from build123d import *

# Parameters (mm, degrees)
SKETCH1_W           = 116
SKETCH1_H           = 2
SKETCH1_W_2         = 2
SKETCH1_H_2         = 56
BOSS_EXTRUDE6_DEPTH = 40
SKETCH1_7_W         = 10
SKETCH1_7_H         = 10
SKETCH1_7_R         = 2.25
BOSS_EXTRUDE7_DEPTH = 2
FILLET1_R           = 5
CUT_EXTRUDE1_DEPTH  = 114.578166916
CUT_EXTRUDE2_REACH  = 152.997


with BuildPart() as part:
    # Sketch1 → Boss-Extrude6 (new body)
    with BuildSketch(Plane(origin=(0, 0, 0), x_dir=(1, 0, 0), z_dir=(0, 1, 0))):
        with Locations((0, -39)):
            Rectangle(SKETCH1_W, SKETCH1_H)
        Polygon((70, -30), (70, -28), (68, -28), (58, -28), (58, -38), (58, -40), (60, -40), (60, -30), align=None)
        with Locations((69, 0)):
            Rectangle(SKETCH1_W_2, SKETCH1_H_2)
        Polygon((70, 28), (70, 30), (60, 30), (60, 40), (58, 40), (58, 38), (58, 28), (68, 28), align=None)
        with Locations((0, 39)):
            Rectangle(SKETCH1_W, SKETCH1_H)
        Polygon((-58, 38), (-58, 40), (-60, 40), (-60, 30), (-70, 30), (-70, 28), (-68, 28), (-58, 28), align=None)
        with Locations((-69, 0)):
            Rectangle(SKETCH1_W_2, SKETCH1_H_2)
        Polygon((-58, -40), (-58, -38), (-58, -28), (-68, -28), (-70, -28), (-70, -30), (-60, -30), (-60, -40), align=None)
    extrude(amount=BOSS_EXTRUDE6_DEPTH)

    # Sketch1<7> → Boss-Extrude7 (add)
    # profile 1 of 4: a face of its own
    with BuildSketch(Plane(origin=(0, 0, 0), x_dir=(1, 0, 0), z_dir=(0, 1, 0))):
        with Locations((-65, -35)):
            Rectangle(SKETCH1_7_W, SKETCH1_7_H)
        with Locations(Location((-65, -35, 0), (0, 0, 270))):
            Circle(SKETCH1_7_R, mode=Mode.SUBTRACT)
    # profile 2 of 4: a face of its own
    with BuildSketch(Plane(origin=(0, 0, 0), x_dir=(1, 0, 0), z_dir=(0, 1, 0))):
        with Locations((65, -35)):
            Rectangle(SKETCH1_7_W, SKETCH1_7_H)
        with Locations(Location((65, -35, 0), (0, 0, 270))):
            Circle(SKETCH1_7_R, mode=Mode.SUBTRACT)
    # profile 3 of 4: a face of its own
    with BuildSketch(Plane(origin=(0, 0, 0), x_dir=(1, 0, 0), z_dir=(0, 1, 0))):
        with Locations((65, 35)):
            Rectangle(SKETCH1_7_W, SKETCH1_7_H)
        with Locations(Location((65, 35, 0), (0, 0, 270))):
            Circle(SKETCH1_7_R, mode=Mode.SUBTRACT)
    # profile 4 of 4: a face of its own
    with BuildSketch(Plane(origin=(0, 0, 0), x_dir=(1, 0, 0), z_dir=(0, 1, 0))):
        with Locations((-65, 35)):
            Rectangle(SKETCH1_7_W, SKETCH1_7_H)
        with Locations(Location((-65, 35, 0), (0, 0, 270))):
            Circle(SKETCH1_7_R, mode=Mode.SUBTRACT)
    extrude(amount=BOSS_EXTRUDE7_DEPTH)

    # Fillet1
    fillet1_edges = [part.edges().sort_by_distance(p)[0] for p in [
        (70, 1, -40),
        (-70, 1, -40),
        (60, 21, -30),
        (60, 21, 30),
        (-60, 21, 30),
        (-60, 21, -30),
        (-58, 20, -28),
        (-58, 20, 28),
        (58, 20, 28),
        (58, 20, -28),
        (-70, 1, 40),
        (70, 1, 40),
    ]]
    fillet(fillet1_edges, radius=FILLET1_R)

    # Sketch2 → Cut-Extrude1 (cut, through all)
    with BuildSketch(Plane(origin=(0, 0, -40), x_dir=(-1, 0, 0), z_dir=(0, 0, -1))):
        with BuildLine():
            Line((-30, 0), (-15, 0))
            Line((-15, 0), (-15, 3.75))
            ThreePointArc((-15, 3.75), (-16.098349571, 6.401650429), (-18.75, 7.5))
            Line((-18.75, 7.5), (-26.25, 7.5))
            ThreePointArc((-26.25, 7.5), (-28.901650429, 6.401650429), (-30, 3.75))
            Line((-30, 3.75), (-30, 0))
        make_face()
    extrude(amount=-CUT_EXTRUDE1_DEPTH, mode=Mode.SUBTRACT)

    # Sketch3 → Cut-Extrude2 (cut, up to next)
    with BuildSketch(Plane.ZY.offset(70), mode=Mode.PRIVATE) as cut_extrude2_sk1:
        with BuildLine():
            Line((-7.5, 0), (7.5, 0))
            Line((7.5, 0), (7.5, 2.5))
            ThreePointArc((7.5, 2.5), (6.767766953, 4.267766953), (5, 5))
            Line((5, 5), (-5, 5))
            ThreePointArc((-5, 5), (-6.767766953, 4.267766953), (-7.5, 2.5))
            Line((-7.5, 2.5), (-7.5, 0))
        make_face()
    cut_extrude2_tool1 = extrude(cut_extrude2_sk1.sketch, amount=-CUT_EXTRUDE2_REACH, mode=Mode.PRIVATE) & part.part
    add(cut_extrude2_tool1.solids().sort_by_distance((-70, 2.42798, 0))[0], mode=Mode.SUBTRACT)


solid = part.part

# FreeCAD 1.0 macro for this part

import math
import FreeCAD as App
import Part
import Sketcher


def edges_at(feature, points):
    """Names of the edges that pass closest to the given points."""
    edges = feature.Shape.Edges
    near = lambda p: min(range(len(edges)), key=lambda i: edges[i].distToShape(Part.Vertex(*p))[0])
    return sorted({f"Edge{near(p) + 1}" for p in points})

doc = App.newDocument("Part")
params = doc.addObject("Spreadsheet::Sheet", "Params")
for row, (alias, value) in enumerate([
    ("sketch1_width", "10 mm"),
    ("sketch1_width2", "120 mm"),
    ("sketch1_width3", "116 mm"),
    ("sketch1_height", "60 mm"),
    ("sketch1_height2", "56 mm"),
    ("pad1_length", "40 mm"),
    ("sketch2_diameter", "4.5 mm"),
    ("sketch2_width", "10 mm"),
    ("pad2_length", "2 mm"),
    ("fillet_radius", "5 mm"),
    ("sketch3_width", "15 mm"),
    ("sketch3_radius", "3.75 mm"),
    ("sketch3_height", "3.75 mm"),
    ("sketch4_radius", "2.5 mm"),
    ("sketch4_height", "15 mm"),
    ("sketch4_width", "2.5 mm"),
], start=1):
    params.set(f"A{row}", alias)
    params.set(f"B{row}", "=" + value)
    params.setAlias(f"B{row}", alias)

body = doc.addObject("PartDesign::Body", "Body")

# Sketch on XZ plane
sketch1 = body.newObject("Sketcher::SketchObject", "Sketch")
sketch1.AttachmentSupport = (doc.getObject("XZ_Plane"), [""])
sketch1.MapMode = "FlatFace"
sketch1.addGeometry([
    Part.LineSegment(App.Vector(60, 40, 0), App.Vector(60, 30, 0)),  # 0
    Part.LineSegment(App.Vector(60, 30, 0), App.Vector(70, 30, 0)),  # 1
    Part.LineSegment(App.Vector(70, 30, 0), App.Vector(70, -30, 0)),  # 2
    Part.LineSegment(App.Vector(70, -30, 0), App.Vector(60, -30, 0)),  # 3
    Part.LineSegment(App.Vector(60, -30, 0), App.Vector(60, -40, 0)),  # 4
    Part.LineSegment(App.Vector(60, -40, 0), App.Vector(-60, -40, 0)),  # 5
    Part.LineSegment(App.Vector(-60, -40, 0), App.Vector(-60, -30, 0)),  # 6
    Part.LineSegment(App.Vector(-60, -30, 0), App.Vector(-70, -30, 0)),  # 7
    Part.LineSegment(App.Vector(-70, -30, 0), App.Vector(-70, 30, 0)),  # 8
    Part.LineSegment(App.Vector(-70, 30, 0), App.Vector(-60, 30, 0)),  # 9
    Part.LineSegment(App.Vector(-60, 30, 0), App.Vector(-60, 40, 0)),  # 10
    Part.LineSegment(App.Vector(-60, 40, 0), App.Vector(60, 40, 0)),  # 11
    Part.LineSegment(App.Vector(-68, 28, 0), App.Vector(-68, -28, 0)),  # 12
    Part.LineSegment(App.Vector(-68, -28, 0), App.Vector(-58, -28, 0)),  # 13
    Part.LineSegment(App.Vector(-58, -28, 0), App.Vector(-58, -38, 0)),  # 14
    Part.LineSegment(App.Vector(-58, -38, 0), App.Vector(58, -38, 0)),  # 15
    Part.LineSegment(App.Vector(58, -38, 0), App.Vector(58, -28, 0)),  # 16
    Part.LineSegment(App.Vector(58, -28, 0), App.Vector(68, -28, 0)),  # 17
    Part.LineSegment(App.Vector(68, -28, 0), App.Vector(68, 28, 0)),  # 18
    Part.LineSegment(App.Vector(68, 28, 0), App.Vector(58, 28, 0)),  # 19
    Part.LineSegment(App.Vector(58, 28, 0), App.Vector(58, 38, 0)),  # 20
    Part.LineSegment(App.Vector(58, 38, 0), App.Vector(-58, 38, 0)),  # 21
    Part.LineSegment(App.Vector(-58, 38, 0), App.Vector(-58, 28, 0)),  # 22
    Part.LineSegment(App.Vector(-58, 28, 0), App.Vector(-68, 28, 0)),  # 23
], False)
sketch1.addConstraint([
    Sketcher.Constraint("Coincident", 0, 2, 1, 1),
    Sketcher.Constraint("Coincident", 1, 2, 2, 1),
    Sketcher.Constraint("Coincident", 2, 2, 3, 1),
    Sketcher.Constraint("Coincident", 3, 2, 4, 1),
    Sketcher.Constraint("Coincident", 4, 2, 5, 1),
    Sketcher.Constraint("Coincident", 5, 2, 6, 1),
    Sketcher.Constraint("Coincident", 6, 2, 7, 1),
    Sketcher.Constraint("Coincident", 7, 2, 8, 1),
    Sketcher.Constraint("Coincident", 8, 2, 9, 1),
    Sketcher.Constraint("Coincident", 9, 2, 10, 1),
    Sketcher.Constraint("Coincident", 10, 2, 11, 1),
    Sketcher.Constraint("Coincident", 11, 2, 0, 1),
    Sketcher.Constraint("Coincident", 12, 2, 13, 1),
    Sketcher.Constraint("Coincident", 13, 2, 14, 1),
    Sketcher.Constraint("Coincident", 14, 2, 15, 1),
    Sketcher.Constraint("Coincident", 15, 2, 16, 1),
    Sketcher.Constraint("Coincident", 16, 2, 17, 1),
    Sketcher.Constraint("Coincident", 17, 2, 18, 1),
    Sketcher.Constraint("Coincident", 18, 2, 19, 1),
    Sketcher.Constraint("Coincident", 19, 2, 20, 1),
    Sketcher.Constraint("Coincident", 20, 2, 21, 1),
    Sketcher.Constraint("Coincident", 21, 2, 22, 1),
    Sketcher.Constraint("Coincident", 22, 2, 23, 1),
    Sketcher.Constraint("Coincident", 23, 2, 12, 1),
    Sketcher.Constraint("Vertical", 0),
    Sketcher.Constraint("Horizontal", 1),
    Sketcher.Constraint("Vertical", 2),
    Sketcher.Constraint("Horizontal", 3),
    Sketcher.Constraint("Vertical", 4),
    Sketcher.Constraint("Horizontal", 5),
    Sketcher.Constraint("Vertical", 6),
    Sketcher.Constraint("Horizontal", 7),
    Sketcher.Constraint("Vertical", 8),
    Sketcher.Constraint("Horizontal", 9),
    Sketcher.Constraint("Vertical", 10),
    Sketcher.Constraint("Horizontal", 11),
    Sketcher.Constraint("Vertical", 12),
    Sketcher.Constraint("Horizontal", 13),
    Sketcher.Constraint("Vertical", 14),
    Sketcher.Constraint("Horizontal", 15),
    Sketcher.Constraint("Vertical", 16),
    Sketcher.Constraint("Horizontal", 17),
    Sketcher.Constraint("Vertical", 18),
    Sketcher.Constraint("Horizontal", 19),
    Sketcher.Constraint("Vertical", 20),
    Sketcher.Constraint("Horizontal", 21),
    Sketcher.Constraint("Vertical", 22),
    Sketcher.Constraint("Horizontal", 23),
    Sketcher.Constraint("Symmetric", 0, 2, 6, 2, -1, 1),
    Sketcher.Constraint("Symmetric", 2, 2, 8, 2, -1, 1),
    Sketcher.Constraint("Symmetric", 4, 2, 10, 2, -1, 1),
    Sketcher.Constraint("Symmetric", 12, 2, 18, 2, -1, 1),
    Sketcher.Constraint("Symmetric", 14, 2, 20, 2, -1, 1),
    Sketcher.Constraint("Symmetric", 16, 2, 22, 2, -1, 1),
    Sketcher.Constraint("Symmetric", 3, 2, 6, 2, -2),
    Sketcher.Constraint("Symmetric", 13, 2, 16, 2, -2),
    Sketcher.Constraint("Equal", 9, 13),
    Sketcher.Constraint("Equal", 23, 0),
    Sketcher.Constraint("Equal", 10, 14),
    Sketcher.Constraint("DistanceX", 1, 1, 1, 2, 10.0),
    Sketcher.Constraint("DistanceX", 5, 2, 5, 1, 120.0),
    Sketcher.Constraint("DistanceX", 15, 1, 15, 2, 116.0),
    Sketcher.Constraint("DistanceY", 2, 2, 2, 1, 60.0),
    Sketcher.Constraint("DistanceY", 12, 2, 12, 1, 56.0),
])
sketch1.setExpression("Constraints[59]", "Params.sketch1_width")
sketch1.setExpression("Constraints[60]", "Params.sketch1_width2")
sketch1.setExpression("Constraints[61]", "Params.sketch1_width3")
sketch1.setExpression("Constraints[62]", "Params.sketch1_height")
sketch1.setExpression("Constraints[63]", "Params.sketch1_height2")
pad1 = body.newObject("PartDesign::Pad", "Pad")
pad1.Profile = sketch1
pad1.setExpression("Length", "Params.pad1_length")
pad1.Reversed = True

# Sketch on XZ plane
sketch2 = body.newObject("Sketcher::SketchObject", "Sketch001")
sketch2.AttachmentSupport = (doc.getObject("XZ_Plane"), [""])
sketch2.MapMode = "FlatFace"
sketch2.addGeometry([
    Part.LineSegment(App.Vector(-70, 30, 0), App.Vector(-70, 40, 0)),  # 0
    Part.LineSegment(App.Vector(-70, 40, 0), App.Vector(-60, 40, 0)),  # 1
    Part.LineSegment(App.Vector(-60, 40, 0), App.Vector(-60, 30, 0)),  # 2
    Part.LineSegment(App.Vector(-60, 30, 0), App.Vector(-70, 30, 0)),  # 3
    Part.Circle(App.Vector(-65, 35, 0), App.Vector(0, 0, 1), 2.2),  # 4
    Part.LineSegment(App.Vector(60, 30, 0), App.Vector(60, 40, 0)),  # 5
    Part.LineSegment(App.Vector(60, 40, 0), App.Vector(70, 40, 0)),  # 6
    Part.LineSegment(App.Vector(70, 40, 0), App.Vector(70, 30, 0)),  # 7
    Part.LineSegment(App.Vector(70, 30, 0), App.Vector(60, 30, 0)),  # 8
    Part.Circle(App.Vector(65, 35, 0), App.Vector(0, 0, 1), 2.2),  # 9
    Part.LineSegment(App.Vector(60, -40, 0), App.Vector(60, -30, 0)),  # 10
    Part.LineSegment(App.Vector(60, -30, 0), App.Vector(70, -30, 0)),  # 11
    Part.LineSegment(App.Vector(70, -30, 0), App.Vector(70, -40, 0)),  # 12
    Part.LineSegment(App.Vector(70, -40, 0), App.Vector(60, -40, 0)),  # 13
    Part.Circle(App.Vector(65, -35, 0), App.Vector(0, 0, 1), 2.2),  # 14
    Part.LineSegment(App.Vector(-70, -40, 0), App.Vector(-70, -30, 0)),  # 15
    Part.LineSegment(App.Vector(-70, -30, 0), App.Vector(-60, -30, 0)),  # 16
    Part.LineSegment(App.Vector(-60, -30, 0), App.Vector(-60, -40, 0)),  # 17
    Part.LineSegment(App.Vector(-60, -40, 0), App.Vector(-70, -40, 0)),  # 18
    Part.Circle(App.Vector(-65, -35, 0), App.Vector(0, 0, 1), 2.2),  # 19
], False)
sketch2.addConstraint([
    Sketcher.Constraint("Coincident", 0, 2, 1, 1),
    Sketcher.Constraint("Coincident", 1, 2, 2, 1),
    Sketcher.Constraint("Coincident", 2, 2, 3, 1),
    Sketcher.Constraint("Coincident", 3, 2, 0, 1),
    Sketcher.Constraint("Coincident", 5, 2, 6, 1),
    Sketcher.Constraint("Coincident", 6, 2, 7, 1),
    Sketcher.Constraint("Coincident", 7, 2, 8, 1),
    Sketcher.Constraint("Coincident", 8, 2, 5, 1),
    Sketcher.Constraint("Coincident", 10, 2, 11, 1),
    Sketcher.Constraint("Coincident", 11, 2, 12, 1),
    Sketcher.Constraint("Coincident", 12, 2, 13, 1),
    Sketcher.Constraint("Coincident", 13, 2, 10, 1),
    Sketcher.Constraint("Coincident", 15, 2, 16, 1),
    Sketcher.Constraint("Coincident", 16, 2, 17, 1),
    Sketcher.Constraint("Coincident", 17, 2, 18, 1),
    Sketcher.Constraint("Coincident", 18, 2, 15, 1),
    Sketcher.Constraint("Vertical", 0),
    Sketcher.Constraint("Horizontal", 1),
    Sketcher.Constraint("Vertical", 2),
    Sketcher.Constraint("Horizontal", 3),
    Sketcher.Constraint("Vertical", 5),
    Sketcher.Constraint("Horizontal", 6),
    Sketcher.Constraint("Vertical", 7),
    Sketcher.Constraint("Horizontal", 8),
    Sketcher.Constraint("Vertical", 10),
    Sketcher.Constraint("Horizontal", 11),
    Sketcher.Constraint("Vertical", 12),
    Sketcher.Constraint("Horizontal", 13),
    Sketcher.Constraint("Vertical", 15),
    Sketcher.Constraint("Horizontal", 16),
    Sketcher.Constraint("Vertical", 17),
    Sketcher.Constraint("Horizontal", 18),
    Sketcher.Constraint("Equal", 4, 9),
    Sketcher.Constraint("Equal", 9, 14),
    Sketcher.Constraint("Equal", 14, 19),
    Sketcher.Constraint("Symmetric", 4, 3, 14, 3, -1, 1),
    Sketcher.Constraint("Symmetric", 9, 3, 19, 3, -1, 1),
    Sketcher.Constraint("Symmetric", 2, 2, 10, 2, -1, 1),
    Sketcher.Constraint("Symmetric", 0, 2, 12, 2, -1, 1),
    Sketcher.Constraint("Symmetric", 7, 2, 15, 2, -1, 1),
    Sketcher.Constraint("Symmetric", 5, 2, 17, 2, -1, 1),
    Sketcher.Constraint("Symmetric", 4, 3, 9, 3, -2),
    Sketcher.Constraint("Symmetric", 1, 2, 5, 2, -2),
    Sketcher.Constraint("Symmetric", 3, 2, 7, 2, -2),
    Sketcher.Constraint("Equal", 18, 0),
    Sketcher.Constraint("Diameter", 4, 4.5),
    Sketcher.Constraint("DistanceX", 1, 1, 1, 2, 10.0),
    Sketcher.Constraint("DistanceX", 4, 3, -1, 1, 65.0),
    Sketcher.Constraint("DistanceY", -1, 1, 4, 3, 35.0),
    Sketcher.Constraint("DistanceX", 0, 2, -1, 1, 70.0),
    Sketcher.Constraint("DistanceY", -1, 1, 0, 2, 40.0),
])
sketch2.setExpression("Constraints[45]", "Params.sketch2_diameter")
sketch2.setExpression("Constraints[46]", "Params.sketch2_width")
pad2 = body.newObject("PartDesign::Pad", "Pad001")
pad2.Profile = sketch2
pad2.setExpression("Length", "Params.pad2_length")
pad2.Reversed = True
doc.recompute()

fillet = body.newObject("PartDesign::Fillet", "Fillet")
fillet.Base = (pad2, edges_at(pad2, [
    (70, 1, -40),
    (-70, 1, -40),
    (60, 21, -30),
    (60, 21, 30),
    (-60, 21, 30),
    (-60, 21, -30),
    (-58, 20, -28),
    (-58, 20, 28),
    (58, 20, 28),
    (58, 20, -28),
    (-70, 1, 40),
    (70, 1, 40),
]))
fillet.setExpression("Radius", "Params.fillet_radius")

# Sketch on XY plane
sketch3 = body.newObject("Sketcher::SketchObject", "Sketch002")
sketch3.AttachmentSupport = (doc.getObject("XY_Plane"), [""])
sketch3.MapMode = "FlatFace"
sketch3.AttachmentOffset = App.Placement(App.Vector(0, 0, -40), App.Rotation())
sketch3.addGeometry([
    Part.LineSegment(App.Vector(30, 0, 0), App.Vector(15, 0, 0)),  # 0
    Part.LineSegment(App.Vector(15, 0, 0), App.Vector(15, 3.8, 0)),  # 1
    Part.ArcOfCircle(Part.Circle(App.Vector(18.8, 3.7, 0), App.Vector(0, 0, 1), 3.8), math.radians(90), math.radians(180)),  # 2
    Part.LineSegment(App.Vector(18.8, 7.5, 0), App.Vector(26.2, 7.5, 0)),  # 3
    Part.ArcOfCircle(Part.Circle(App.Vector(26.2, 3.7, 0), App.Vector(0, 0, 1), 3.8), math.radians(0), math.radians(90)),  # 4
    Part.LineSegment(App.Vector(30, 3.8, 0), App.Vector(30, 0, 0)),  # 5
], False)
sketch3.addConstraint([
    Sketcher.Constraint("Coincident", 0, 2, 1, 1),
    Sketcher.Constraint("Tangent", 1, 2, 2, 2),
    Sketcher.Constraint("Tangent", 2, 1, 3, 1),
    Sketcher.Constraint("Tangent", 3, 2, 4, 2),
    Sketcher.Constraint("Tangent", 4, 1, 5, 1),
    Sketcher.Constraint("Coincident", 5, 2, 0, 1),
    Sketcher.Constraint("Horizontal", 0),
    Sketcher.Constraint("Vertical", 1),
    Sketcher.Constraint("Horizontal", 3),
    Sketcher.Constraint("Vertical", 5),
    Sketcher.Constraint("Equal", 2, 4),
    Sketcher.Constraint("PointOnObject", 0, 2, -1),
    Sketcher.Constraint("DistanceX", 0, 2, 0, 1, 15.0),
    Sketcher.Constraint("Radius", 2, 3.75),
    Sketcher.Constraint("DistanceX", -1, 1, 0, 2, 15.0),
    Sketcher.Constraint("DistanceY", 1, 1, 1, 2, 3.75),
])
sketch3.setExpression("Constraints[12]", "Params.sketch3_width")
sketch3.setExpression("Constraints[13]", "Params.sketch3_radius")
sketch3.setExpression("Constraints[15]", "Params.sketch3_height")
pocket1 = body.newObject("PartDesign::Pocket", "Pocket")
pocket1.Profile = sketch3
pocket1.Type = "ThroughAll"
pocket1.Reversed = True

# Sketch on YZ plane
sketch4 = body.newObject("Sketcher::SketchObject", "Sketch003")
sketch4.AttachmentSupport = (doc.getObject("YZ_Plane"), [""])
sketch4.MapMode = "FlatFace"
sketch4.AttachmentOffset = App.Placement(App.Vector(0, 0, -70), App.Rotation())
sketch4.addGeometry([
    Part.LineSegment(App.Vector(0, -7.5, 0), App.Vector(0, 7.5, 0)),  # 0
    Part.LineSegment(App.Vector(0, 7.5, 0), App.Vector(2.5, 7.5, 0)),  # 1
    Part.ArcOfCircle(Part.Circle(App.Vector(2.5, 5, 0), App.Vector(0, 0, 1), 2.5), math.radians(0), math.radians(90)),  # 2
    Part.LineSegment(App.Vector(5, 5, 0), App.Vector(5, -5, 0)),  # 3
    Part.ArcOfCircle(Part.Circle(App.Vector(2.5, -5, 0), App.Vector(0, 0, 1), 2.5), math.radians(-90), math.radians(0)),  # 4
    Part.LineSegment(App.Vector(2.5, -7.5, 0), App.Vector(0, -7.5, 0)),  # 5
], False)
sketch4.addConstraint([
    Sketcher.Constraint("Coincident", 0, 2, 1, 1),
    Sketcher.Constraint("Tangent", 1, 2, 2, 2),
    Sketcher.Constraint("Tangent", 2, 1, 3, 1),
    Sketcher.Constraint("Tangent", 3, 2, 4, 2),
    Sketcher.Constraint("Tangent", 4, 1, 5, 1),
    Sketcher.Constraint("Coincident", 5, 2, 0, 1),
    Sketcher.Constraint("Vertical", 0),
    Sketcher.Constraint("Horizontal", 1),
    Sketcher.Constraint("Vertical", 3),
    Sketcher.Constraint("Horizontal", 5),
    Sketcher.Constraint("Equal", 2, 4),
    Sketcher.Constraint("Symmetric", 0, 2, 5, 2, -1, 1),
    Sketcher.Constraint("Radius", 2, 2.5),
    Sketcher.Constraint("DistanceY", 0, 1, 0, 2, 15.0),
    Sketcher.Constraint("DistanceX", 1, 1, 1, 2, 2.5),
])
sketch4.setExpression("Constraints[12]", "Params.sketch4_radius")
sketch4.setExpression("Constraints[13]", "Params.sketch4_height")
sketch4.setExpression("Constraints[14]", "Params.sketch4_width")
pocket2 = body.newObject("PartDesign::Pocket", "Pocket001")
pocket2.Profile = sketch4
pocket2.Type = "UpToFirst"
pocket2.Reversed = True

doc.recompute()
